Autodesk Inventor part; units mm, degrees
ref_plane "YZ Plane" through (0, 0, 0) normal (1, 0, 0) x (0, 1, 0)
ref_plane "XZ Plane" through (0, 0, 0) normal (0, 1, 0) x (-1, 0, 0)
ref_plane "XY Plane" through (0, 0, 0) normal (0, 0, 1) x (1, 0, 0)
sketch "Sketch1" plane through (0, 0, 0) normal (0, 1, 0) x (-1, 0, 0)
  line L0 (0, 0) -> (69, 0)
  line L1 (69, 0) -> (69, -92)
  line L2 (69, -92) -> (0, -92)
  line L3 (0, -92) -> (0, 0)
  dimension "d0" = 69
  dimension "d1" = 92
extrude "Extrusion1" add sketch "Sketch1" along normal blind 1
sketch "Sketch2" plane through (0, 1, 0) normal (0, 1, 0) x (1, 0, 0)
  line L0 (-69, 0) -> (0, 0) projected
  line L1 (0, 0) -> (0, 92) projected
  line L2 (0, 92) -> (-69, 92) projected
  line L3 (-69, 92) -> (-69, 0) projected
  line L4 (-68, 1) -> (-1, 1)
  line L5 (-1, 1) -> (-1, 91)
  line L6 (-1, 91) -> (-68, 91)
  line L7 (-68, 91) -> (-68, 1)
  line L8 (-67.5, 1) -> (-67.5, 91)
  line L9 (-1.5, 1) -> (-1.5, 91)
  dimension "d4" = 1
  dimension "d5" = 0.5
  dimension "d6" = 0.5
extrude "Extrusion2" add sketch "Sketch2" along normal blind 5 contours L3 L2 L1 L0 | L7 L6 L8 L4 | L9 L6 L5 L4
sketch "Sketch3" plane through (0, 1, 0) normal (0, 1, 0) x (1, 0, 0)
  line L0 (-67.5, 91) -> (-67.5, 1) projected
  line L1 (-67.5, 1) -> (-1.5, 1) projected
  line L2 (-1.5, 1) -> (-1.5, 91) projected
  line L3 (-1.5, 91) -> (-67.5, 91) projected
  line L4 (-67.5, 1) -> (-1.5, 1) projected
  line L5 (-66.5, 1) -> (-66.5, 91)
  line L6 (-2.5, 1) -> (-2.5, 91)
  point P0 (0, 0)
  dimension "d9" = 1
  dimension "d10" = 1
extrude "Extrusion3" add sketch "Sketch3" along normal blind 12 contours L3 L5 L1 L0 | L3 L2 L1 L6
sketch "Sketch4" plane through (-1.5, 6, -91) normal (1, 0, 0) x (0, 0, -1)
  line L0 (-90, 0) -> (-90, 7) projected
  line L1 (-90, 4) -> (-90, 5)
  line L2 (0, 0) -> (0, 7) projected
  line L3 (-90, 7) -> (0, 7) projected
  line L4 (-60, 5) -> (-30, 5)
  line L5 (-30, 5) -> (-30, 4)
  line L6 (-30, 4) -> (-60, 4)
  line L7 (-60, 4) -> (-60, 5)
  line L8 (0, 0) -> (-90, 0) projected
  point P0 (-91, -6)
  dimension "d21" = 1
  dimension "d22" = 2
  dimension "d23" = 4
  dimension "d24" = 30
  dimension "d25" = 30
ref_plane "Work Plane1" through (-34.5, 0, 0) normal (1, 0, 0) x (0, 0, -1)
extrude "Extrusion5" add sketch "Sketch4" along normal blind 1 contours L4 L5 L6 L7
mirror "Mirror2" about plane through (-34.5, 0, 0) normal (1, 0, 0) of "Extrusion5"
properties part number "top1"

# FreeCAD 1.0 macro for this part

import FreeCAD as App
import Part
import Sketcher

V = App.Vector
Q = App.Units.Quantity

doc = App.newDocument("Part")
params = doc.addObject("Spreadsheet::Sheet", "Params")
for row, (alias, value) in enumerate([
    ("sketch1_width", "69 mm"),
    ("sketch1_height", "92 mm"),
    ("pad1_length", "1 mm"),
    ("sketch2_width", "69 mm"),
    ("sketch2_width2", "66 mm"),
    ("sketch2_height", "92 mm"),
    ("pad2_length", "5 mm"),
    ("sketch3_width", "1 mm"),
    ("sketch3_height", "90 mm"),
    ("pad3_length", "12 mm"),
    ("sketch4_width", "1 mm"),
    ("sketch4_height", "30 mm"),
    ("pad4_length", "1 mm"),
], start=1):
    params.set(f"A{row}", alias)
    params.set(f"B{row}", "=" + value)
    params.setAlias(f"B{row}", alias)

body = doc.addObject("PartDesign::Body", "Body")

sketch1 = body.newObject("Sketcher::SketchObject", "Sketch")
sketch1.AttachmentSupport = (doc.getObject("XZ_Plane"), [""])
sketch1.MapMode = "FlatFace"
sketch1.addGeometry([
    Part.LineSegment(V(-69, 0, 0), V(0, 0, 0)),
    Part.LineSegment(V(0, 0, 0), V(0, -92, 0)),
    Part.LineSegment(V(0, -92, 0), V(-69, -92, 0)),
    Part.LineSegment(V(-69, -92, 0), V(-69, 0, 0)),
], False)
sketch1.addConstraint([
    Sketcher.Constraint("Coincident", 0, 2, 1, 1),
    Sketcher.Constraint("Coincident", 1, 2, 2, 1),
    Sketcher.Constraint("Coincident", 2, 2, 3, 1),
    Sketcher.Constraint("Coincident", 3, 2, 0, 1),
    Sketcher.Constraint("Horizontal", 0),
    Sketcher.Constraint("Vertical", 1),
    Sketcher.Constraint("Horizontal", 2),
    Sketcher.Constraint("Vertical", 3),
    Sketcher.Constraint("Coincident", 0, 2, -1, 1),
    Sketcher.Constraint("DistanceX", 0, 1, 0, 2, Q("69 mm")),
    Sketcher.Constraint("DistanceY", 1, 2, 1, 1, Q("92 mm")),
])
sketch1.setExpression("Constraints[9]", "Params.sketch1_width")
sketch1.setExpression("Constraints[10]", "Params.sketch1_height")
pad1 = body.newObject("PartDesign::Pad", "Pad")
pad1.Profile = sketch1
pad1.setExpression("Length", "Params.pad1_length")
pad1.Reversed = True

sketch2 = body.newObject("Sketcher::SketchObject", "Sketch001")
sketch2.AttachmentSupport = (doc.getObject("XZ_Plane"), [""])
sketch2.MapMode = "FlatFace"
sketch2.AttachmentOffset = App.Placement(V(0, 0, -1), App.Rotation())
sketch2.addGeometry([
    Part.LineSegment(V(-69, -92, 0), V(-69, 0, 0)),
    Part.LineSegment(V(-69, 0, 0), V(0, 0, 0)),
    Part.LineSegment(V(0, 0, 0), V(0, -92, 0)),
    Part.LineSegment(V(0, -92, 0), V(-69, -92, 0)),
    Part.LineSegment(V(-1.5, -1, 0), V(-67.5, -1, 0)),
    Part.LineSegment(V(-67.5, -1, 0), V(-67.5, -91, 0)),
    Part.LineSegment(V(-67.5, -91, 0), V(-1.5, -91, 0)),
    Part.LineSegment(V(-1.5, -91, 0), V(-1.5, -1, 0)),
], False)
sketch2.addConstraint([
    Sketcher.Constraint("Coincident", 0, 2, 1, 1),
    Sketcher.Constraint("Coincident", 1, 2, 2, 1),
    Sketcher.Constraint("Coincident", 2, 2, 3, 1),
    Sketcher.Constraint("Coincident", 3, 2, 0, 1),
    Sketcher.Constraint("Coincident", 4, 2, 5, 1),
    Sketcher.Constraint("Coincident", 5, 2, 6, 1),
    Sketcher.Constraint("Coincident", 6, 2, 7, 1),
    Sketcher.Constraint("Coincident", 7, 2, 4, 1),
    Sketcher.Constraint("Vertical", 0),
    Sketcher.Constraint("Horizontal", 1),
    Sketcher.Constraint("Vertical", 2),
    Sketcher.Constraint("Horizontal", 3),
    Sketcher.Constraint("Horizontal", 4),
    Sketcher.Constraint("Vertical", 5),
    Sketcher.Constraint("Horizontal", 6),
    Sketcher.Constraint("Vertical", 7),
    Sketcher.Constraint("Coincident", 1, 2, -1, 1),
    Sketcher.Constraint("DistanceY", 4, 2, -1, 1, Q("1 mm")),
    Sketcher.Constraint("DistanceY", 3, 2, 5, 2, Q("1 mm")),
    Sketcher.Constraint("DistanceX", 1, 1, 1, 2, Q("69 mm")),
    Sketcher.Constraint("DistanceX", 4, 2, 4, 1, Q("66 mm")),
    Sketcher.Constraint("DistanceY", 0, 1, 0, 2, Q("92 mm")),
    Sketcher.Constraint("DistanceX", 4, 2, -1, 1, Q("67.5 mm")),
])
sketch2.setExpression("Constraints[19]", "Params.sketch2_width")
sketch2.setExpression("Constraints[20]", "Params.sketch2_width2")
sketch2.setExpression("Constraints[21]", "Params.sketch2_height")
pad2 = body.newObject("PartDesign::Pad", "Pad001")
pad2.Profile = sketch2
pad2.setExpression("Length", "Params.pad2_length")
pad2.Reversed = True

sketch3 = body.newObject("Sketcher::SketchObject", "Sketch002")
sketch3.AttachmentSupport = (doc.getObject("XZ_Plane"), [""])
sketch3.MapMode = "FlatFace"
sketch3.AttachmentOffset = App.Placement(V(0, 0, -1), App.Rotation())
sketch3.addGeometry([
    Part.LineSegment(V(-66.5, -91, 0), V(-67.5, -91, 0)),
    Part.LineSegment(V(-67.5, -91, 0), V(-67.5, -1, 0)),
    Part.LineSegment(V(-67.5, -1, 0), V(-66.5, -1, 0)),
    Part.LineSegment(V(-66.5, -1, 0), V(-66.5, -91, 0)),
    Part.LineSegment(V(-1.5, -91, 0), V(-2.5, -91, 0)),
    Part.LineSegment(V(-2.5, -91, 0), V(-2.5, -1, 0)),
    Part.LineSegment(V(-2.5, -1, 0), V(-1.5, -1, 0)),
    Part.LineSegment(V(-1.5, -1, 0), V(-1.5, -91, 0)),
], False)
sketch3.addConstraint([
    Sketcher.Constraint("Coincident", 0, 2, 1, 1),
    Sketcher.Constraint("Coincident", 1, 2, 2, 1),
    Sketcher.Constraint("Coincident", 2, 2, 3, 1),
    Sketcher.Constraint("Coincident", 3, 2, 0, 1),
    Sketcher.Constraint("Coincident", 4, 2, 5, 1),
    Sketcher.Constraint("Coincident", 5, 2, 6, 1),
    Sketcher.Constraint("Coincident", 6, 2, 7, 1),
    Sketcher.Constraint("Coincident", 7, 2, 4, 1),
    Sketcher.Constraint("Horizontal", 0),
    Sketcher.Constraint("Vertical", 1),
    Sketcher.Constraint("Horizontal", 2),
    Sketcher.Constraint("Vertical", 3),
    Sketcher.Constraint("Horizontal", 4),
    Sketcher.Constraint("Vertical", 5),
    Sketcher.Constraint("Horizontal", 6),
    Sketcher.Constraint("Vertical", 7),
    Sketcher.Constraint("Horizontal", 3, 2, 4, 2),
    Sketcher.Constraint("Horizontal", 2, 2, 5, 2),
    Sketcher.Constraint("Equal", 2, 4),
    Sketcher.Constraint("DistanceX", 0, 2, 0, 1, Q("1 mm")),
    Sketcher.Constraint("DistanceY", 1, 2, -1, 1, Q("1 mm")),
    Sketcher.Constraint("DistanceY", 1, 1, 1, 2, Q("90 mm")),
    Sketcher.Constraint("DistanceX", 3, 2, 4, 2, Q("64 mm")),
    Sketcher.Constraint("DistanceX", 0, 2, -1, 1, Q("67.5 mm")),
])
sketch3.setExpression("Constraints[19]", "Params.sketch3_width")
sketch3.setExpression("Constraints[21]", "Params.sketch3_height")
pad3 = body.newObject("PartDesign::Pad", "Pad002")
pad3.Profile = sketch3
pad3.setExpression("Length", "Params.pad3_length")
pad3.Reversed = True

sketch4 = body.newObject("Sketcher::SketchObject", "Sketch003")
sketch4.AttachmentSupport = (doc.getObject("YZ_Plane"), [""])
sketch4.MapMode = "FlatFace"
sketch4.AttachmentOffset = App.Placement(V(0, 0, -1.5), App.Rotation())
sketch4.addGeometry([
    Part.LineSegment(V(11, -61, 0), V(11, -31, 0)),
    Part.LineSegment(V(11, -31, 0), V(10, -31, 0)),
    Part.LineSegment(V(10, -31, 0), V(10, -61, 0)),
    Part.LineSegment(V(10, -61, 0), V(11, -61, 0)),
], False)
sketch4.addConstraint([
    Sketcher.Constraint("Coincident", 0, 2, 1, 1),
    Sketcher.Constraint("Coincident", 1, 2, 2, 1),
    Sketcher.Constraint("Coincident", 2, 2, 3, 1),
    Sketcher.Constraint("Coincident", 3, 2, 0, 1),
    Sketcher.Constraint("Vertical", 0),
    Sketcher.Constraint("Horizontal", 1),
    Sketcher.Constraint("Vertical", 2),
    Sketcher.Constraint("Horizontal", 3),
    Sketcher.Constraint("DistanceX", 1, 2, 1, 1, Q("1 mm")),
    Sketcher.Constraint("DistanceY", 0, 1, 0, 2, Q("30 mm")),
    Sketcher.Constraint("DistanceX", -1, 1, 0, 2, Q("11 mm")),
    Sketcher.Constraint("DistanceY", 0, 2, -1, 1, Q("31 mm")),
])
sketch4.setExpression("Constraints[8]", "Params.sketch4_width")
sketch4.setExpression("Constraints[9]", "Params.sketch4_height")
pad4 = body.newObject("PartDesign::Pad", "Pad003")
pad4.Profile = sketch4
pad4.setExpression("Length", "Params.pad4_length")
doc.recompute()

datumplane = body.newObject("PartDesign::Plane", "DatumPlane")
datumplane.AttachmentSupport = (doc.getObject("YZ_Plane"), [""])
datumplane.MapMode = "FlatFace"
datumplane.AttachmentOffset = App.Placement(V(0, 0, -34.5), App.Rotation())
mirrored = body.newObject("PartDesign::Mirrored", "Mirrored")
mirrored.Originals = [pad4]
mirrored.MirrorPlane = (datumplane, [""])
body.Tip = mirrored

doc.recompute()
